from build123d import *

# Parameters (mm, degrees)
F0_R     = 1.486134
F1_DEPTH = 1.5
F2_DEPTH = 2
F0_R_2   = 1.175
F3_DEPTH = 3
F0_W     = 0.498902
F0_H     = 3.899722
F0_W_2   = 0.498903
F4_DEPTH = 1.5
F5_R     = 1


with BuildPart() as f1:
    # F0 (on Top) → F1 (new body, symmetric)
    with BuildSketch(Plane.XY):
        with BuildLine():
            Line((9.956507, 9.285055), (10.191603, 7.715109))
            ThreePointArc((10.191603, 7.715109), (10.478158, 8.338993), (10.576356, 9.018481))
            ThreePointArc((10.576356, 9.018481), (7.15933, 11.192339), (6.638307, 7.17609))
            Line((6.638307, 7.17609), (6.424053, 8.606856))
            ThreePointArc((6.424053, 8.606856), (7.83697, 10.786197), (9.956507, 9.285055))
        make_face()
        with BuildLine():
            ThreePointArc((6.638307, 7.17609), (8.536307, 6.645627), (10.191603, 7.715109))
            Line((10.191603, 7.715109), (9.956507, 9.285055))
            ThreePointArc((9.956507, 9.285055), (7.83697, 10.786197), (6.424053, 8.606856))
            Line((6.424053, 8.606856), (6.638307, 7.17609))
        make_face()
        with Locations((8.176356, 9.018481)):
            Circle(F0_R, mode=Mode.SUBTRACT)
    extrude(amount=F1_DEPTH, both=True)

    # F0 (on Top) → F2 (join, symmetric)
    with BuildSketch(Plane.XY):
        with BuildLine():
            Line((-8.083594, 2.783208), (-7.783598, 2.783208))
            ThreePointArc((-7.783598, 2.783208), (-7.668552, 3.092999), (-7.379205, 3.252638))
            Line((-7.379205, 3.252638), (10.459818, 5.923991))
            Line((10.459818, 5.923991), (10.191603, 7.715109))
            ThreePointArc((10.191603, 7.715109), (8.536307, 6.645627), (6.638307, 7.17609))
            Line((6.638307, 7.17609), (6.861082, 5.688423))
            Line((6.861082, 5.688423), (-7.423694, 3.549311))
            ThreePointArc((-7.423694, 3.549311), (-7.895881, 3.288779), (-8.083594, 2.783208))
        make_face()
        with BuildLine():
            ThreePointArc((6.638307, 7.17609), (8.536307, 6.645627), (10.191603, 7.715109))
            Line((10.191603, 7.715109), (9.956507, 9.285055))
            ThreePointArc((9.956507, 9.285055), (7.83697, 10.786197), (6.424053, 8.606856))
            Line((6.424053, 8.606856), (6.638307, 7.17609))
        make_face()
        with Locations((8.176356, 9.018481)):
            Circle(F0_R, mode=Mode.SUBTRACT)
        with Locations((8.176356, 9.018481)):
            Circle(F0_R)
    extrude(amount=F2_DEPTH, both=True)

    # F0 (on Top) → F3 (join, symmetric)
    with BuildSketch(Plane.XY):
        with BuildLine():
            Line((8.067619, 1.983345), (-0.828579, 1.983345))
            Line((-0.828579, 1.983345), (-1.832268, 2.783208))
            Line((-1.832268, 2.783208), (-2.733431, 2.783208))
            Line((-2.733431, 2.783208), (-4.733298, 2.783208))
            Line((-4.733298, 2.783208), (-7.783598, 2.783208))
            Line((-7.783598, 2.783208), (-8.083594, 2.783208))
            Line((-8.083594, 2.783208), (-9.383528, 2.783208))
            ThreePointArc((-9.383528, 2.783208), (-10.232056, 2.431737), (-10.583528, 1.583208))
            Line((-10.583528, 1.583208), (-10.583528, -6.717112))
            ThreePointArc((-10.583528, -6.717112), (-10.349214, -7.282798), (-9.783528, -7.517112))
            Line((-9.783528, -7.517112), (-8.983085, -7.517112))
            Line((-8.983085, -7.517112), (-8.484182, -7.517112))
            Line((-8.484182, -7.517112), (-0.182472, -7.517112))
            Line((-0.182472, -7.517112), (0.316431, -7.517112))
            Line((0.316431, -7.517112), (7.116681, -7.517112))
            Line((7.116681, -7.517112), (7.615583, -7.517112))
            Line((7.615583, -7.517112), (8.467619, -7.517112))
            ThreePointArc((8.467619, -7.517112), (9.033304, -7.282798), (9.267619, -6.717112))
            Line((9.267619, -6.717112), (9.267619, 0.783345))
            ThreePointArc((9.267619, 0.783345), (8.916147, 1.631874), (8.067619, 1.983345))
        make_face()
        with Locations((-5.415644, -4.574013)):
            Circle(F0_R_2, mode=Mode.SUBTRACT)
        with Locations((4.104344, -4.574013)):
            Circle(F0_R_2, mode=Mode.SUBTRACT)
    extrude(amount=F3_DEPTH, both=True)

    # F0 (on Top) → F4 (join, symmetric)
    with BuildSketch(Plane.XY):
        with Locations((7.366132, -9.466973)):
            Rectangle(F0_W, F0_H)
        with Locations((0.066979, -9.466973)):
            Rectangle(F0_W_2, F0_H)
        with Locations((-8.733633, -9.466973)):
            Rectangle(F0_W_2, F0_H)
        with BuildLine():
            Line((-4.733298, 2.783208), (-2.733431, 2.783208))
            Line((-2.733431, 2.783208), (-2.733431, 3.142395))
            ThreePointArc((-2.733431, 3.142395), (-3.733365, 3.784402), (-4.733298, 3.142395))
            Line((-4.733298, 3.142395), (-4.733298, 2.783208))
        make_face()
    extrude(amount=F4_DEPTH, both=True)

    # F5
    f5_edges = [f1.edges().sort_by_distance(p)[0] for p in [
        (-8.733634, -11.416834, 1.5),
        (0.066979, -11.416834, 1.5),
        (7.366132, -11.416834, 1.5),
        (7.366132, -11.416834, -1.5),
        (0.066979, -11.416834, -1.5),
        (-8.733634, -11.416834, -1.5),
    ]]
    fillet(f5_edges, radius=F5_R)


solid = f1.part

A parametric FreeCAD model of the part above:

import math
import FreeCAD as App
import Part
import Sketcher

V = App.Vector


def edges_at(feature, points):
    """Names of the edges that pass closest to the given points."""
    edges = feature.Shape.Edges
    near = lambda p: min(range(len(edges)), key=lambda i: edges[i].distToShape(Part.Vertex(*p))[0])
    return sorted({f"Edge{near(p) + 1}" for p in points})


def add_polygon(sketch, points):
    """Adds a closed chain of lines whose ends are joined by coincident constraints."""
    first, n = sketch.GeometryCount, len(points)
    for a, b in zip(points, points[1:] + points[:1]):
        sketch.addGeometry(Part.LineSegment(App.Vector(*a, 0), App.Vector(*b, 0)), False)
    for i in range(n):
        sketch.addConstraint(Sketcher.Constraint("Coincident", first + i, 2, first + (i + 1) % n, 1))

doc = App.newDocument("Part")
body = doc.addObject("PartDesign::Body", "Body")

# Sketch on XY plane
sketch1 = body.newObject("Sketcher::SketchObject", "Sketch")
sketch1.AttachmentSupport = (doc.getObject("XY_Plane"), [""])
sketch1.MapMode = "FlatFace"
sketch1.addGeometry([
    Part.ArcOfCircle(Part.Circle(V(8.2, 9, 0), V(0, 0, 1), 2.4), math.radians(-33), math.radians(0)),
    Part.ArcOfCircle(Part.Circle(V(8.2, 9, 0), V(0, 0, 1), 2.4), math.radians(0), math.radians(230)),
    Part.ArcOfCircle(Part.Circle(V(8.2, 9, 0), V(0, 0, 1), 2.4), math.radians(-130), math.radians(-33)),
    Part.Circle(V(8.2, 9, 0), V(0, 0, 1), 1.5),
], False)
sketch1.addConstraint([
    Sketcher.Constraint("Tangent", 0, 2, 1, 1),
    Sketcher.Constraint("Tangent", 1, 2, 2, 1),
    Sketcher.Constraint("Tangent", 2, 2, 0, 1),
    Sketcher.Constraint("Coincident", 3, 3, 1, 3),
    Sketcher.Constraint("Horizontal", 3, 3, 0, 2),
    Sketcher.Constraint("Radius", 1, 2.4),
    Sketcher.Constraint("Diameter", 3, 2.972268),
    Sketcher.Constraint("DistanceX", -1, 1, 0, 3, 8.176341),
    Sketcher.Constraint("DistanceY", -1, 1, 1, 3, 9.018481),
    Sketcher.Constraint("DistanceY", -1, 1, 1, 2, 7.17609),
    Sketcher.Constraint("DistanceY", -1, 1, 2, 2, 7.715109),
])
pad1 = body.newObject("PartDesign::Pad", "Pad")
pad1.Profile = sketch1
pad1.Length = 3
pad1.Midplane = True

# Sketch on XY plane
sketch2 = body.newObject("Sketcher::SketchObject", "Sketch001")
sketch2.AttachmentSupport = (doc.getObject("XY_Plane"), [""])
sketch2.MapMode = "FlatFace"
sketch2.addGeometry([
    Part.LineSegment(V(-8.083594, 2.783208, 0), V(-7.783598, 2.783208, 0)),  # 0
    Part.ArcOfCircle(Part.Circle(V(-7.308907, 2.783181, 0), V(0, 0, 1), 0.474691), math.radians(98.516351), math.radians(179.996787)),  # 1
    Part.LineSegment(V(-7.379205, 3.252638, 0), V(10.459818, 5.923991, 0)),  # 2
    Part.LineSegment(V(10.459818, 5.923991, 0), V(10.191603, 7.715109, 0)),  # 3
    Part.LineSegment(V(10.191603, 7.715109, 0), V(9.956507, 9.285055, 0)),  # 4
    Part.ArcOfCircle(Part.Circle(V(8.176356, 9.018482, 0), V(0, 0, 1), 1.8), math.radians(8.516621), math.radians(193.219423)),  # 5
    Part.LineSegment(V(6.424053, 8.606856, 0), V(6.638307, 7.17609, 0)),  # 6
    Part.LineSegment(V(6.638307, 7.17609, 0), V(6.861082, 5.688423, 0)),  # 7
    Part.LineSegment(V(6.861082, 5.688423, 0), V(-7.423694, 3.549311, 0)),  # 8
    Part.ArcOfCircle(Part.Circle(V(-7.308975, 2.783234, 0), V(0, 0, 1), 0.774619), math.radians(98.51669), math.radians(180.001904)),  # 9
], False)
sketch2.addConstraint([
    Sketcher.Constraint("Coincident", 0, 2, 1, 2),
    Sketcher.Constraint("Coincident", 1, 1, 2, 1),
    Sketcher.Constraint("Coincident", 2, 2, 3, 1),
    Sketcher.Constraint("Coincident", 3, 2, 4, 1),
    Sketcher.Constraint("Coincident", 4, 2, 5, 1),
    Sketcher.Constraint("Coincident", 5, 2, 6, 1),
    Sketcher.Constraint("Coincident", 6, 2, 7, 1),
    Sketcher.Constraint("Coincident", 7, 2, 8, 1),
    Sketcher.Constraint("Coincident", 8, 2, 9, 1),
    Sketcher.Constraint("Coincident", 9, 2, 0, 1),
    Sketcher.Constraint("Horizontal", 0),
    Sketcher.Constraint("Radius", 5, 1.8),
    Sketcher.Constraint("Radius", 1, 0.474691),
    Sketcher.Constraint("Radius", 9, 0.774619),
    Sketcher.Constraint("DistanceY", 1, 3, 5, 3, 6.2353),
    Sketcher.Constraint("DistanceY", 5, 2, 4, 2, 0.678199),
    Sketcher.Constraint("DistanceX", 6, 2, 4, 2, 3.3182),
    Sketcher.Constraint("DistanceY", 2, 2, 6, 2, 1.252099),
    Sketcher.Constraint("DistanceX", 9, 2, 8, 2, 0.6599),
    Sketcher.Constraint("Distance", 2, 18.037929),
    Sketcher.Constraint("Distance", 3, 1.811089),
    Sketcher.Constraint("Distance", 4, 1.587451),
    Sketcher.Constraint("Distance", 6, 1.446719),
    Sketcher.Constraint("Distance", 8, 14.444052),
    Sketcher.Constraint("DistanceX", 0, 1, 0, 2, 0.299996),
    Sketcher.Constraint("DistanceY", -1, 1, 1, 3, 2.783181),
    Sketcher.Constraint("DistanceY", -1, 1, 0, 2, 2.783208),
    Sketcher.Constraint("DistanceY", -1, 1, 1, 1, 3.252638),
    Sketcher.Constraint("DistanceY", -1, 1, 2, 2, 5.923991),
    Sketcher.Constraint("DistanceY", -1, 1, 3, 2, 7.715109),
    Sketcher.Constraint("DistanceX", -1, 1, 7, 2, 6.861082),
    Sketcher.Constraint("DistanceY", -1, 1, 8, 2, 3.549311),
    Sketcher.Constraint("DistanceX", 5, 2, 7, 2, 0.437029),
])
pad2 = body.newObject("PartDesign::Pad", "Pad001")
pad2.Profile = sketch2
pad2.Length = 4
pad2.Midplane = True

# Sketch on XY plane
sketch3 = body.newObject("Sketcher::SketchObject", "Sketch002")
sketch3.AttachmentSupport = (doc.getObject("XY_Plane"), [""])
sketch3.MapMode = "FlatFace"
sketch3.addGeometry([
    Part.LineSegment(V(8.1, 2, 0), V(-0.8, 2, 0)),  # 0
    Part.LineSegment(V(-0.8, 2, 0), V(-1.8, 2.8, 0)),  # 1
    Part.LineSegment(V(-1.8, 2.8, 0), V(-9.4, 2.8, 0)),  # 2
    Part.ArcOfCircle(Part.Circle(V(-9.4, 1.6, 0), V(0, 0, 1), 1.2), math.radians(90), math.radians(180)),  # 3
    Part.LineSegment(V(-10.6, 1.6, 0), V(-10.6, -6.7, 0)),  # 4
    Part.ArcOfCircle(Part.Circle(V(-9.8, -6.7, 0), V(0, 0, 1), 0.8), math.radians(180), math.radians(270)),  # 5
    Part.LineSegment(V(-9.8, -7.5, 0), V(8.5, -7.5, 0)),  # 6
    Part.ArcOfCircle(Part.Circle(V(8.5, -6.7, 0), V(0, 0, 1), 0.8), math.radians(-90), math.radians(0)),  # 7
    Part.LineSegment(V(9.3, -6.7, 0), V(9.3, 0.8, 0)),  # 8
    Part.ArcOfCircle(Part.Circle(V(8.1, 0.8, 0), V(0, 0, 1), 1.2), math.radians(0), math.radians(90)),  # 9
    Part.Circle(V(-5.4, -4.6, 0), V(0, 0, 1), 1.2),  # 10
    Part.Circle(V(4.1, -4.6, 0), V(0, 0, 1), 1.2),  # 11
], False)
sketch3.addConstraint([
    Sketcher.Constraint("Coincident", 0, 2, 1, 1),
    Sketcher.Constraint("Coincident", 1, 2, 2, 1),
    Sketcher.Constraint("Tangent", 2, 2, 3, 1),
    Sketcher.Constraint("Tangent", 3, 2, 4, 1),
    Sketcher.Constraint("Coincident", 4, 2, 5, 1),
    Sketcher.Constraint("Coincident", 5, 2, 6, 1),
    Sketcher.Constraint("Tangent", 6, 2, 7, 1),
    Sketcher.Constraint("Tangent", 7, 2, 8, 1),
    Sketcher.Constraint("Tangent", 8, 2, 9, 1),
    Sketcher.Constraint("Tangent", 9, 2, 0, 1),
    Sketcher.Constraint("Horizontal", 0),
    Sketcher.Constraint("Horizontal", 2),
    Sketcher.Constraint("Vertical", 4),
    Sketcher.Constraint("Horizontal", 6),
    Sketcher.Constraint("Vertical", 8),
    Sketcher.Constraint("Equal", 5, 7),
    Sketcher.Constraint("Equal", 3, 9),
    Sketcher.Constraint("Equal", 10, 11),
    Sketcher.Constraint("Horizontal", 10, 3, 11, 3),
    Sketcher.Constraint("Horizontal", 7, 3, 4, 2),
    Sketcher.Constraint("Radius", 3, 1.199999),
    Sketcher.Constraint("Radius", 5, 0.799998),
    Sketcher.Constraint("Diameter", 10, 2.35),
    Sketcher.Constraint("DistanceX", 4, 2, 5, 2, 0.8),
    Sketcher.Constraint("DistanceX", 2, 2, 2, 1, 7.55126),
    Sketcher.Constraint("DistanceY", 4, 2, 4, 1, 8.30032),
    Sketcher.Constraint("DistanceY", 5, 3, 10, 3, 2.143101),
    Sketcher.Constraint("DistanceX", 0, 2, 9, 3, 8.896199),
    Sketcher.Constraint("DistanceX", 6, 1, 6, 2, 18.251147),
    Sketcher.Constraint("DistanceY", 8, 1, 8, 2, 7.500457),
    Sketcher.Constraint("DistanceX", 3, 3, -1, 1, 9.383529),
    Sketcher.Constraint("DistanceY", -1, 1, 3, 3, 1.583209),
    Sketcher.Constraint("DistanceX", 10, 3, 11, 3, 9.519988),
    Sketcher.Constraint("DistanceX", 10, 3, -1, 1, 5.415644),
])
pad3 = body.newObject("PartDesign::Pad", "Pad002")
pad3.Profile = sketch3
pad3.Length = 6
pad3.Midplane = True

# Sketch on XY plane
sketch4 = body.newObject("Sketcher::SketchObject", "Sketch003")
sketch4.AttachmentSupport = (doc.getObject("XY_Plane"), [""])
sketch4.MapMode = "FlatFace"
add_polygon(sketch4, [(7.12, -7.52), (7.12, -11.42), (7.62, -11.42), (7.62, -7.52)])  # lines 0-3
add_polygon(sketch4, [(-0.18, -7.52), (-0.18, -11.42), (0.32, -11.42), (0.32, -7.52)])  # lines 4-7
add_polygon(sketch4, [(-8.98, -7.52), (-8.98, -11.42), (-8.48, -11.42), (-8.48, -7.52)])  # lines 8-11
sketch4.addGeometry(Part.LineSegment(V(-4.73, 2.78, 0), V(-2.73, 2.78, 0)), False)  # 12
sketch4.addGeometry(Part.LineSegment(V(-2.73, 2.78, 0), V(-2.73, 3.14, 0)), False)  # 13
sketch4.addGeometry(Part.ArcOfCircle(Part.Circle(V(-3.73, 2.68, 0), V(0, 0, 1), 1.1), math.radians(25), math.radians(155)), False)  # 14
sketch4.addGeometry(Part.LineSegment(V(-4.73, 3.14, 0), V(-4.73, 2.78, 0)), False)  # 15
sketch4.addConstraint([
    Sketcher.Constraint("Coincident", 12, 2, 13, 1),
    Sketcher.Constraint("Coincident", 13, 2, 14, 1),
    Sketcher.Constraint("Coincident", 14, 2, 15, 1),
    Sketcher.Constraint("Coincident", 15, 2, 12, 1),
    Sketcher.Constraint("Vertical", 0),
    Sketcher.Constraint("Horizontal", 1),
    Sketcher.Constraint("Vertical", 2),
    Sketcher.Constraint("Horizontal", 3),
    Sketcher.Constraint("Vertical", 4),
    Sketcher.Constraint("Horizontal", 5),
    Sketcher.Constraint("Vertical", 6),
    Sketcher.Constraint("Horizontal", 7),
    Sketcher.Constraint("Vertical", 8),
    Sketcher.Constraint("Horizontal", 9),
    Sketcher.Constraint("Vertical", 10),
    Sketcher.Constraint("Horizontal", 11),
    Sketcher.Constraint("Horizontal", 12),
    Sketcher.Constraint("Vertical", 13),
    Sketcher.Constraint("Vertical", 15),
    Sketcher.Constraint("Horizontal", 1, 2, 4, 2),
    Sketcher.Constraint("Horizontal", 3, 2, 6, 2),
    Sketcher.Constraint("Horizontal", 5, 2, 8, 2),
    Sketcher.Constraint("Horizontal", 7, 2, 10, 2),
    Sketcher.Constraint("Horizontal", 13, 2, 14, 2),
    Sketcher.Constraint("Equal", 3, 5),
    Sketcher.Constraint("Equal", 7, 9),
    Sketcher.Constraint("Radius", 14, 1.099708),
    Sketcher.Constraint("DistanceY", 0, 2, 0, 1, 3.899722),
    Sketcher.Constraint("DistanceX", 14, 2, -1, 1, 4.733298),
    Sketcher.Constraint("DistanceY", 14, 3, 13, 2, 0.457701),
    Sketcher.Constraint("DistanceX", 1, 1, 1, 2, 0.498902),
    Sketcher.Constraint("DistanceY", 13, 1, 13, 2, 0.359187),
    Sketcher.Constraint("DistanceX", -1, 1, 0, 2, 7.116681),
    Sketcher.Constraint("DistanceX", -1, 1, 5, 2, 0.316431),
    Sketcher.Constraint("DistanceX", 9, 2, -1, 1, 8.484182),
    Sketcher.Constraint("DistanceY", -1, 1, 12, 2, 2.783208),
    Sketcher.Constraint("DistanceY", 0, 2, 14, 3, 14.101528),
])
pad4 = body.newObject("PartDesign::Pad", "Pad003")
pad4.Profile = sketch4
pad4.Length = 3
pad4.Midplane = True
doc.recompute()

fillet = body.newObject("PartDesign::Fillet", "Fillet")
fillet.Base = (pad4, edges_at(pad4, [
    (-8.734, -11.417, 1.5),
    (0.067, -11.417, 1.5),
    (7.366, -11.417, 1.5),
    (7.366, -11.417, -1.5),
    (0.067, -11.417, -1.5),
    (-8.734, -11.417, -1.5),
]))
fillet.Radius = 1

doc.recompute()
